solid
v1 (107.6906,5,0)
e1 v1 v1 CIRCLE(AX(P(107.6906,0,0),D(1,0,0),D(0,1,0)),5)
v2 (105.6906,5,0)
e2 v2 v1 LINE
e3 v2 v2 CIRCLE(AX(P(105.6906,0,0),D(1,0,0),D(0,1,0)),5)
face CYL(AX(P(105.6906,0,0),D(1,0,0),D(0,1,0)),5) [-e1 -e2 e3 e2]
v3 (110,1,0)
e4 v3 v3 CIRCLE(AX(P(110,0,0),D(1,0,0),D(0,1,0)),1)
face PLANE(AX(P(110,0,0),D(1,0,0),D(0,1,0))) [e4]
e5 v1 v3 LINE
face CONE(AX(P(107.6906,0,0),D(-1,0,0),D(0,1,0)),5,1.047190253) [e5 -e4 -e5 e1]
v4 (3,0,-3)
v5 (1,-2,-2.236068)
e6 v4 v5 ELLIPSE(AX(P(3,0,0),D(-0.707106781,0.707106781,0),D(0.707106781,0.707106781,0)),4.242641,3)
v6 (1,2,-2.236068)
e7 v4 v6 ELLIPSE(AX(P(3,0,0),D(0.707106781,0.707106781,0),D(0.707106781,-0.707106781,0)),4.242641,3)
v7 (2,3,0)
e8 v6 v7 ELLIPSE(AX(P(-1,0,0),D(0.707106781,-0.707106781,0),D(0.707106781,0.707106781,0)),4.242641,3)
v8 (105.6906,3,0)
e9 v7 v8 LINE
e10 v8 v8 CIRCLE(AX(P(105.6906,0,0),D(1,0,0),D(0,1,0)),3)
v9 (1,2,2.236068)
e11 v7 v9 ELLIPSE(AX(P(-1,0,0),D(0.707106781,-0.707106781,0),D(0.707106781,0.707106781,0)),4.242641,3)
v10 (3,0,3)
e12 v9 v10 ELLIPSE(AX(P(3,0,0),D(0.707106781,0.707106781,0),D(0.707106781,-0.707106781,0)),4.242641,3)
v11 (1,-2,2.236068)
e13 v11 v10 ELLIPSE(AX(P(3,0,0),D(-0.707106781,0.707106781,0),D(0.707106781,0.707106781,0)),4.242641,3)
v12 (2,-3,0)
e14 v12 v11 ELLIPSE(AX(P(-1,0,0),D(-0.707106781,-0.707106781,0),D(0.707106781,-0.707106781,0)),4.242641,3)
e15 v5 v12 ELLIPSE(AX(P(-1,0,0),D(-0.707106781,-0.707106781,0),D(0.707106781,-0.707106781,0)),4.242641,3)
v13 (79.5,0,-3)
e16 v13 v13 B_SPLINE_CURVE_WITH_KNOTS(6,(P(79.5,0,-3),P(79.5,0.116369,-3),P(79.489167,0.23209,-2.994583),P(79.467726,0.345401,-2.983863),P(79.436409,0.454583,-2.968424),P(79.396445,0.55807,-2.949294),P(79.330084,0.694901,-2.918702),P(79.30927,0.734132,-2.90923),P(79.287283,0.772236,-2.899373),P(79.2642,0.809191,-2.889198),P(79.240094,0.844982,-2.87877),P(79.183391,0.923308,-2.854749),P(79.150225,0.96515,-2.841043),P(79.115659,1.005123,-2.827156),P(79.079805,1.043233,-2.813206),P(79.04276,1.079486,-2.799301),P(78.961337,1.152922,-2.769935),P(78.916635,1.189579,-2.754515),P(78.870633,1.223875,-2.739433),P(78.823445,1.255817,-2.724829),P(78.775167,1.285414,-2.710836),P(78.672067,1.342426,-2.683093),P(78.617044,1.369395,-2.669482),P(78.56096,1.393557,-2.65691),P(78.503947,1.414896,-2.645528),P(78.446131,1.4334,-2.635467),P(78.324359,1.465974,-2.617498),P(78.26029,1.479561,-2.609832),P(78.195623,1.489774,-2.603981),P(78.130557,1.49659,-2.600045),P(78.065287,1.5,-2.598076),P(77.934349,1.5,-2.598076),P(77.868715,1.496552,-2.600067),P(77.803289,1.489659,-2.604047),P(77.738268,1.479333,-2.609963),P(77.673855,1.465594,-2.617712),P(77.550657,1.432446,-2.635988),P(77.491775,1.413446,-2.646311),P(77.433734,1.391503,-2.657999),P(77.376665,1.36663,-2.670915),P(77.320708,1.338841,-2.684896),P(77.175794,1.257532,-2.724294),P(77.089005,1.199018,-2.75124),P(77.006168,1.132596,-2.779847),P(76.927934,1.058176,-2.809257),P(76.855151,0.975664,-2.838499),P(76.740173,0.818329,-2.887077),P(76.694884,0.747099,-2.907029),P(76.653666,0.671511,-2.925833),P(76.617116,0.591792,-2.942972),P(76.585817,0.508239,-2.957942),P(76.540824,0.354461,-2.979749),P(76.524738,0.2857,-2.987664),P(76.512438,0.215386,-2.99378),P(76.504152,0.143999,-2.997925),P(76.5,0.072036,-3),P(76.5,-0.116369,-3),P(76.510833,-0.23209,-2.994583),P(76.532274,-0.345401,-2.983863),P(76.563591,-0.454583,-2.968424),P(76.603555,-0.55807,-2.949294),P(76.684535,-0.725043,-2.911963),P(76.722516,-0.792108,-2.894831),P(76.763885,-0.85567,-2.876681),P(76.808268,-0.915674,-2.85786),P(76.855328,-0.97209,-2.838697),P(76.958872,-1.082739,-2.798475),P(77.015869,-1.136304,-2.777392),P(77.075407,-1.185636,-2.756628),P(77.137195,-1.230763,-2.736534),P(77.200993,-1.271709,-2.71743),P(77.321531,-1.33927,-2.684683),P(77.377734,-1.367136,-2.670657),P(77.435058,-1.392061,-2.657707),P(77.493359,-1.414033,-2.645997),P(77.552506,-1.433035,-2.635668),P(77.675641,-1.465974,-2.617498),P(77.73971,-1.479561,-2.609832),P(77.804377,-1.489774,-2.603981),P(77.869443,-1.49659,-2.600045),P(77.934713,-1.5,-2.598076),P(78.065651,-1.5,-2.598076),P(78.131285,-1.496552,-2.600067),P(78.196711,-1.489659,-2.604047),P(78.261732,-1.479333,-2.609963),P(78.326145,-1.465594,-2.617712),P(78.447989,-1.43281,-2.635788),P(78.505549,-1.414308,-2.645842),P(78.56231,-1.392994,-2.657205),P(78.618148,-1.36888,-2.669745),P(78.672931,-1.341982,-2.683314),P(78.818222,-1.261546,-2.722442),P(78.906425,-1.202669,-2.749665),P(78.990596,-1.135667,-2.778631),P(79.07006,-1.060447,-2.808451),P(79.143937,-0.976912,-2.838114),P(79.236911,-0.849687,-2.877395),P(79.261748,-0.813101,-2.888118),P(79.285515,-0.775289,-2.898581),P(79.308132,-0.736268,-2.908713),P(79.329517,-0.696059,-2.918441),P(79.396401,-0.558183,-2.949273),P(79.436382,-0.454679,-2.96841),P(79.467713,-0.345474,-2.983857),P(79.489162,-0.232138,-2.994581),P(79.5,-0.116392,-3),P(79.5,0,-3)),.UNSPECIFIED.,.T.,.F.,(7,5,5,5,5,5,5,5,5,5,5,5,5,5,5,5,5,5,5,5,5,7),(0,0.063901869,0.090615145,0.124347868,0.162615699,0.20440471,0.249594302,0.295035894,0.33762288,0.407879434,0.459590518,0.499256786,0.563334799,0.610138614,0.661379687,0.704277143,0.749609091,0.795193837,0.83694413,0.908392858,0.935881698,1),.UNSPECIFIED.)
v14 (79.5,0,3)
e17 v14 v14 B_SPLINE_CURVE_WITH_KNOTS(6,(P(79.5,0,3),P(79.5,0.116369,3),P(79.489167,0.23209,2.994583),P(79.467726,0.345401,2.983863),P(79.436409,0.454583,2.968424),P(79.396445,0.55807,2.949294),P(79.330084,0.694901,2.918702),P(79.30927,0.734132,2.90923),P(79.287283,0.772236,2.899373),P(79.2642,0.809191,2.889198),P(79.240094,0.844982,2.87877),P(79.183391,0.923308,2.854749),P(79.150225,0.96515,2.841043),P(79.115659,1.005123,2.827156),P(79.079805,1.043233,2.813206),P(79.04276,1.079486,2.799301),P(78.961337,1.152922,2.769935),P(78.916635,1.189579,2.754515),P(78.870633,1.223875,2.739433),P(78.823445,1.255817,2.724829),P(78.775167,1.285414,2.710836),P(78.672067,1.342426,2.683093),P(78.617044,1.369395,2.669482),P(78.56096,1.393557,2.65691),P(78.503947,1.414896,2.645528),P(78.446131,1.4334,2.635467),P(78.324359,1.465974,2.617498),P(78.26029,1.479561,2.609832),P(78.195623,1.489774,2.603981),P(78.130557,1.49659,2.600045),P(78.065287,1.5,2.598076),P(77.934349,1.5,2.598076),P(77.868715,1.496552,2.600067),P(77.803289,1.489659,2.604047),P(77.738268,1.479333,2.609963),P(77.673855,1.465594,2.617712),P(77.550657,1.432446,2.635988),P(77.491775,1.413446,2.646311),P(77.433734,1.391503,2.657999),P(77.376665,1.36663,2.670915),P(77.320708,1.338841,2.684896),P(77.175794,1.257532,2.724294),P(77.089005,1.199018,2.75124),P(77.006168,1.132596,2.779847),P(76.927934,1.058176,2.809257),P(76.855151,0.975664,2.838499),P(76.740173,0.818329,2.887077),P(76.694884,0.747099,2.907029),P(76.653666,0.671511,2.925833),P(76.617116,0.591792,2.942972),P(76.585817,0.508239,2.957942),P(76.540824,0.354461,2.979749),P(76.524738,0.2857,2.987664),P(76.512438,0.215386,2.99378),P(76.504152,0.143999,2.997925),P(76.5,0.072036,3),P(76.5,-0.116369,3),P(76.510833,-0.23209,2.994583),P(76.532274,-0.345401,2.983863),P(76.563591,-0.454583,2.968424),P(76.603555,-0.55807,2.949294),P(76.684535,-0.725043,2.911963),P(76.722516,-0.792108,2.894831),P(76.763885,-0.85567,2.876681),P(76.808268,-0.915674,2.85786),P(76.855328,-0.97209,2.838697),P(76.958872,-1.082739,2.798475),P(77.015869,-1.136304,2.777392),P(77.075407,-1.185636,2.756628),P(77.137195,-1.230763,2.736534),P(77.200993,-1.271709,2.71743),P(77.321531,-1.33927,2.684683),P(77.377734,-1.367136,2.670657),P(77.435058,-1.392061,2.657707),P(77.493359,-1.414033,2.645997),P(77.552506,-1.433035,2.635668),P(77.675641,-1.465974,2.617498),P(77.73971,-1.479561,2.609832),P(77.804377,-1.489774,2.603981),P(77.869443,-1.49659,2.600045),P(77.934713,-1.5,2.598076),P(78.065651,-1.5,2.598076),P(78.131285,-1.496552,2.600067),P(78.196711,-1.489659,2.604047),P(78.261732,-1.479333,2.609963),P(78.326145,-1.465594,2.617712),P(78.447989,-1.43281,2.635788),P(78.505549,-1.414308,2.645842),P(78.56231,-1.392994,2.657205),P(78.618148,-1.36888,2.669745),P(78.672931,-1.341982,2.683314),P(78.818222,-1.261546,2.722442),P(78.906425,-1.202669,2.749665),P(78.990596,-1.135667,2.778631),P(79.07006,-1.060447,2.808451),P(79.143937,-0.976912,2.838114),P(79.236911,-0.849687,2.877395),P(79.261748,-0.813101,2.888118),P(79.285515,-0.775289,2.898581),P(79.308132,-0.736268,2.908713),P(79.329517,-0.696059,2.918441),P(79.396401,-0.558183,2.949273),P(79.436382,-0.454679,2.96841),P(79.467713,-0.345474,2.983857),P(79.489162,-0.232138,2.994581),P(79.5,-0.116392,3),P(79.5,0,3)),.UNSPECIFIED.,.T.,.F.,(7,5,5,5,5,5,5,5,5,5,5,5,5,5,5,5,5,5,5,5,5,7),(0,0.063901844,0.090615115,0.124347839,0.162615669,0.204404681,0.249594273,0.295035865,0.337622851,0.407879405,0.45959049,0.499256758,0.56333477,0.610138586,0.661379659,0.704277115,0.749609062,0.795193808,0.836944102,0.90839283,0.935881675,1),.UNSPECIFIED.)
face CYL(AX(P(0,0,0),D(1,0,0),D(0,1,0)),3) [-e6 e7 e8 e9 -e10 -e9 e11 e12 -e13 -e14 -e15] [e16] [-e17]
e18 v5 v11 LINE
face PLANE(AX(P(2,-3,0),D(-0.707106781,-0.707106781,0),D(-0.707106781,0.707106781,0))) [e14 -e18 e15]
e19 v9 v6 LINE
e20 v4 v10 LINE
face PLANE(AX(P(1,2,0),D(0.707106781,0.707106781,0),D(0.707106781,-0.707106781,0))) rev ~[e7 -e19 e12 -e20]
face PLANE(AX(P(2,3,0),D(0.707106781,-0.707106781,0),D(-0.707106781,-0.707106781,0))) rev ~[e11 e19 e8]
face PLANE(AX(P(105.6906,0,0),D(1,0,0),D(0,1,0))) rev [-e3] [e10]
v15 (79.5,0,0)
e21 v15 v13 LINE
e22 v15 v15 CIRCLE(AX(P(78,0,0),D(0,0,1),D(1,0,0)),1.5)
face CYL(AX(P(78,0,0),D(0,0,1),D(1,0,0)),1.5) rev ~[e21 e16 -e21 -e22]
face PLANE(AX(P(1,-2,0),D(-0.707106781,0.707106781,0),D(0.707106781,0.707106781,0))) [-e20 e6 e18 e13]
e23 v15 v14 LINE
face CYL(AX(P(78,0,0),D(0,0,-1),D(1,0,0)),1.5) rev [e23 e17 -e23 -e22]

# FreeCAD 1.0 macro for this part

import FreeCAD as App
import Part
import Sketcher
from FreeCAD import Vector
Q = App.Units.Quantity

doc = App.newDocument("Part")
body = doc.addObject("PartDesign::Body", "Body")

# Sketch on XY plane
sketch1 = body.newObject("Sketcher::SketchObject", "Sketch")
sketch1.AttachmentSupport = (doc.getObject("XY_Plane"), [""])
sketch1.MapMode = "FlatFace"
sketch1.addGeometry(Part.LineSegment(Vector(3, 0, 0), Vector(110, 0, 0)), False)
sketch1.addGeometry(Part.LineSegment(Vector(110, 0, 0), Vector(110, 1, 0)), False)
sketch1.addGeometry(Part.LineSegment(Vector(110, 1, 0), Vector(107.7, 5, 0)), False)
sketch1.addGeometry(Part.LineSegment(Vector(107.7, 5, 0), Vector(105.7, 5, 0)), False)
sketch1.addGeometry(Part.LineSegment(Vector(105.7, 5, 0), Vector(105.7, 3, 0)), False)
sketch1.addGeometry(Part.LineSegment(Vector(105.7, 3, 0), Vector(0, 3, 0)), False)
sketch1.addGeometry(Part.LineSegment(Vector(0, 3, 0), Vector(3, 0, 0)), False)
sketch1.addConstraint(Sketcher.Constraint("Coincident", 0, 2, 1, 1))
sketch1.addConstraint(Sketcher.Constraint("Coincident", 1, 2, 2, 1))
sketch1.addConstraint(Sketcher.Constraint("Coincident", 2, 2, 3, 1))
sketch1.addConstraint(Sketcher.Constraint("Coincident", 3, 2, 4, 1))
sketch1.addConstraint(Sketcher.Constraint("Coincident", 4, 2, 5, 1))
sketch1.addConstraint(Sketcher.Constraint("Coincident", 5, 2, 6, 1))
sketch1.addConstraint(Sketcher.Constraint("Coincident", 6, 2, 0, 1))
sketch1.addConstraint(Sketcher.Constraint("Horizontal", 0))
sketch1.addConstraint(Sketcher.Constraint("Vertical", 1))
sketch1.addConstraint(Sketcher.Constraint("Horizontal", 3))
sketch1.addConstraint(Sketcher.Constraint("Vertical", 4))
sketch1.addConstraint(Sketcher.Constraint("Horizontal", 5))
sketch1.addConstraint(Sketcher.Constraint("PointOnObject", 0, 2, -1))
sketch1.addConstraint(Sketcher.Constraint("PointOnObject", 5, 2, -2))
sketch1.addConstraint(Sketcher.Constraint("Equal", 3, 4))
sketch1.addConstraint(Sketcher.Constraint("DistanceX", 3, 2, 3, 1, Q("2 mm")))
sketch1.addConstraint(Sketcher.Constraint("DistanceX", -1, 1, 0, 2, Q("110 mm")))
sketch1.addConstraint(Sketcher.Constraint("DistanceY", -1, 1, 4, 2, Q("3 mm")))
sketch1.addConstraint(Sketcher.Constraint("DistanceX", -1, 1, 6, 2, Q("3 mm")))
sketch1.addConstraint(Sketcher.Constraint("DistanceY", 1, 2, 4, 2, Q("2 mm")))
sketch1.addConstraint(Sketcher.Constraint("Angle", 2, Q("120.0004 deg")))
revolution = body.newObject("PartDesign::Revolution", "Revolution")
revolution.Profile = sketch1
revolution.ReferenceAxis = (sketch1, ["H_Axis"])
revolution.Angle = 360

# Sketch on XY plane
sketch2 = body.newObject("Sketcher::SketchObject", "Sketch001")
sketch2.AttachmentSupport = (doc.getObject("XY_Plane"), [""])
sketch2.MapMode = "FlatFace"
sketch2.addGeometry(Part.LineSegment(Vector(0, 3, 0), Vector(0, -3, 0)), False)
sketch2.addGeometry(Part.LineSegment(Vector(0, -3, 0), Vector(2, -3, 0)), False)
sketch2.addGeometry(Part.LineSegment(Vector(2, -3, 0), Vector(1, -2, 0)), False)
sketch2.addGeometry(Part.LineSegment(Vector(1, -2, 0), Vector(3, 0, 0)), False)
sketch2.addGeometry(Part.LineSegment(Vector(3, 0, 0), Vector(1, 2, 0)), False)
sketch2.addGeometry(Part.LineSegment(Vector(1, 2, 0), Vector(2, 3, 0)), False)
sketch2.addGeometry(Part.LineSegment(Vector(2, 3, 0), Vector(0, 3, 0)), False)
sketch2.addGeometry(Part.Circle(Vector(78, 0, 0), Vector(0, 0, 1), 1.5), False)
sketch2.addConstraint(Sketcher.Constraint("Coincident", 0, 2, 1, 1))
sketch2.addConstraint(Sketcher.Constraint("Coincident", 1, 2, 2, 1))
sketch2.addConstraint(Sketcher.Constraint("Coincident", 2, 2, 3, 1))
sketch2.addConstraint(Sketcher.Constraint("Coincident", 3, 2, 4, 1))
sketch2.addConstraint(Sketcher.Constraint("Coincident", 4, 2, 5, 1))
sketch2.addConstraint(Sketcher.Constraint("Coincident", 5, 2, 6, 1))
sketch2.addConstraint(Sketcher.Constraint("Coincident", 6, 2, 0, 1))
sketch2.addConstraint(Sketcher.Constraint("Vertical", 0))
sketch2.addConstraint(Sketcher.Constraint("Horizontal", 1))
sketch2.addConstraint(Sketcher.Constraint("Horizontal", 6))
sketch2.addConstraint(Sketcher.Constraint("Symmetric", 0, 2, 6, 2, -1, 1))
sketch2.addConstraint(Sketcher.Constraint("Symmetric", 2, 2, 4, 2, -1))
sketch2.addConstraint(Sketcher.Constraint("PointOnObject", 7, 3, -1))
sketch2.addConstraint(Sketcher.Constraint("PointOnObject", 3, 2, -1))
sketch2.addConstraint(Sketcher.Constraint("Perpendicular", 2, 3))
sketch2.addConstraint(Sketcher.Constraint("Perpendicular", 3, 4))
sketch2.addConstraint(Sketcher.Constraint("Perpendicular", 4, 5))
sketch2.addConstraint(Sketcher.Constraint("Diameter", 7, Q("3 mm")))
sketch2.addConstraint(Sketcher.Constraint("DistanceX", 1, 1, 1, 2, Q("2 mm")))
sketch2.addConstraint(Sketcher.Constraint("DistanceY", 0, 2, 0, 1, Q("6 mm")))
sketch2.addConstraint(Sketcher.Constraint("DistanceY", 2, 2, -1, 1, Q("2 mm")))
sketch2.addConstraint(Sketcher.Constraint("DistanceX", -1, 1, 7, 3, Q("78 mm")))
pocket1 = body.newObject("PartDesign::Pocket", "Pocket")
pocket1.Profile = sketch2
pocket1.Type = "ThroughAll"
pocket1.Midplane = True

doc.recompute()
